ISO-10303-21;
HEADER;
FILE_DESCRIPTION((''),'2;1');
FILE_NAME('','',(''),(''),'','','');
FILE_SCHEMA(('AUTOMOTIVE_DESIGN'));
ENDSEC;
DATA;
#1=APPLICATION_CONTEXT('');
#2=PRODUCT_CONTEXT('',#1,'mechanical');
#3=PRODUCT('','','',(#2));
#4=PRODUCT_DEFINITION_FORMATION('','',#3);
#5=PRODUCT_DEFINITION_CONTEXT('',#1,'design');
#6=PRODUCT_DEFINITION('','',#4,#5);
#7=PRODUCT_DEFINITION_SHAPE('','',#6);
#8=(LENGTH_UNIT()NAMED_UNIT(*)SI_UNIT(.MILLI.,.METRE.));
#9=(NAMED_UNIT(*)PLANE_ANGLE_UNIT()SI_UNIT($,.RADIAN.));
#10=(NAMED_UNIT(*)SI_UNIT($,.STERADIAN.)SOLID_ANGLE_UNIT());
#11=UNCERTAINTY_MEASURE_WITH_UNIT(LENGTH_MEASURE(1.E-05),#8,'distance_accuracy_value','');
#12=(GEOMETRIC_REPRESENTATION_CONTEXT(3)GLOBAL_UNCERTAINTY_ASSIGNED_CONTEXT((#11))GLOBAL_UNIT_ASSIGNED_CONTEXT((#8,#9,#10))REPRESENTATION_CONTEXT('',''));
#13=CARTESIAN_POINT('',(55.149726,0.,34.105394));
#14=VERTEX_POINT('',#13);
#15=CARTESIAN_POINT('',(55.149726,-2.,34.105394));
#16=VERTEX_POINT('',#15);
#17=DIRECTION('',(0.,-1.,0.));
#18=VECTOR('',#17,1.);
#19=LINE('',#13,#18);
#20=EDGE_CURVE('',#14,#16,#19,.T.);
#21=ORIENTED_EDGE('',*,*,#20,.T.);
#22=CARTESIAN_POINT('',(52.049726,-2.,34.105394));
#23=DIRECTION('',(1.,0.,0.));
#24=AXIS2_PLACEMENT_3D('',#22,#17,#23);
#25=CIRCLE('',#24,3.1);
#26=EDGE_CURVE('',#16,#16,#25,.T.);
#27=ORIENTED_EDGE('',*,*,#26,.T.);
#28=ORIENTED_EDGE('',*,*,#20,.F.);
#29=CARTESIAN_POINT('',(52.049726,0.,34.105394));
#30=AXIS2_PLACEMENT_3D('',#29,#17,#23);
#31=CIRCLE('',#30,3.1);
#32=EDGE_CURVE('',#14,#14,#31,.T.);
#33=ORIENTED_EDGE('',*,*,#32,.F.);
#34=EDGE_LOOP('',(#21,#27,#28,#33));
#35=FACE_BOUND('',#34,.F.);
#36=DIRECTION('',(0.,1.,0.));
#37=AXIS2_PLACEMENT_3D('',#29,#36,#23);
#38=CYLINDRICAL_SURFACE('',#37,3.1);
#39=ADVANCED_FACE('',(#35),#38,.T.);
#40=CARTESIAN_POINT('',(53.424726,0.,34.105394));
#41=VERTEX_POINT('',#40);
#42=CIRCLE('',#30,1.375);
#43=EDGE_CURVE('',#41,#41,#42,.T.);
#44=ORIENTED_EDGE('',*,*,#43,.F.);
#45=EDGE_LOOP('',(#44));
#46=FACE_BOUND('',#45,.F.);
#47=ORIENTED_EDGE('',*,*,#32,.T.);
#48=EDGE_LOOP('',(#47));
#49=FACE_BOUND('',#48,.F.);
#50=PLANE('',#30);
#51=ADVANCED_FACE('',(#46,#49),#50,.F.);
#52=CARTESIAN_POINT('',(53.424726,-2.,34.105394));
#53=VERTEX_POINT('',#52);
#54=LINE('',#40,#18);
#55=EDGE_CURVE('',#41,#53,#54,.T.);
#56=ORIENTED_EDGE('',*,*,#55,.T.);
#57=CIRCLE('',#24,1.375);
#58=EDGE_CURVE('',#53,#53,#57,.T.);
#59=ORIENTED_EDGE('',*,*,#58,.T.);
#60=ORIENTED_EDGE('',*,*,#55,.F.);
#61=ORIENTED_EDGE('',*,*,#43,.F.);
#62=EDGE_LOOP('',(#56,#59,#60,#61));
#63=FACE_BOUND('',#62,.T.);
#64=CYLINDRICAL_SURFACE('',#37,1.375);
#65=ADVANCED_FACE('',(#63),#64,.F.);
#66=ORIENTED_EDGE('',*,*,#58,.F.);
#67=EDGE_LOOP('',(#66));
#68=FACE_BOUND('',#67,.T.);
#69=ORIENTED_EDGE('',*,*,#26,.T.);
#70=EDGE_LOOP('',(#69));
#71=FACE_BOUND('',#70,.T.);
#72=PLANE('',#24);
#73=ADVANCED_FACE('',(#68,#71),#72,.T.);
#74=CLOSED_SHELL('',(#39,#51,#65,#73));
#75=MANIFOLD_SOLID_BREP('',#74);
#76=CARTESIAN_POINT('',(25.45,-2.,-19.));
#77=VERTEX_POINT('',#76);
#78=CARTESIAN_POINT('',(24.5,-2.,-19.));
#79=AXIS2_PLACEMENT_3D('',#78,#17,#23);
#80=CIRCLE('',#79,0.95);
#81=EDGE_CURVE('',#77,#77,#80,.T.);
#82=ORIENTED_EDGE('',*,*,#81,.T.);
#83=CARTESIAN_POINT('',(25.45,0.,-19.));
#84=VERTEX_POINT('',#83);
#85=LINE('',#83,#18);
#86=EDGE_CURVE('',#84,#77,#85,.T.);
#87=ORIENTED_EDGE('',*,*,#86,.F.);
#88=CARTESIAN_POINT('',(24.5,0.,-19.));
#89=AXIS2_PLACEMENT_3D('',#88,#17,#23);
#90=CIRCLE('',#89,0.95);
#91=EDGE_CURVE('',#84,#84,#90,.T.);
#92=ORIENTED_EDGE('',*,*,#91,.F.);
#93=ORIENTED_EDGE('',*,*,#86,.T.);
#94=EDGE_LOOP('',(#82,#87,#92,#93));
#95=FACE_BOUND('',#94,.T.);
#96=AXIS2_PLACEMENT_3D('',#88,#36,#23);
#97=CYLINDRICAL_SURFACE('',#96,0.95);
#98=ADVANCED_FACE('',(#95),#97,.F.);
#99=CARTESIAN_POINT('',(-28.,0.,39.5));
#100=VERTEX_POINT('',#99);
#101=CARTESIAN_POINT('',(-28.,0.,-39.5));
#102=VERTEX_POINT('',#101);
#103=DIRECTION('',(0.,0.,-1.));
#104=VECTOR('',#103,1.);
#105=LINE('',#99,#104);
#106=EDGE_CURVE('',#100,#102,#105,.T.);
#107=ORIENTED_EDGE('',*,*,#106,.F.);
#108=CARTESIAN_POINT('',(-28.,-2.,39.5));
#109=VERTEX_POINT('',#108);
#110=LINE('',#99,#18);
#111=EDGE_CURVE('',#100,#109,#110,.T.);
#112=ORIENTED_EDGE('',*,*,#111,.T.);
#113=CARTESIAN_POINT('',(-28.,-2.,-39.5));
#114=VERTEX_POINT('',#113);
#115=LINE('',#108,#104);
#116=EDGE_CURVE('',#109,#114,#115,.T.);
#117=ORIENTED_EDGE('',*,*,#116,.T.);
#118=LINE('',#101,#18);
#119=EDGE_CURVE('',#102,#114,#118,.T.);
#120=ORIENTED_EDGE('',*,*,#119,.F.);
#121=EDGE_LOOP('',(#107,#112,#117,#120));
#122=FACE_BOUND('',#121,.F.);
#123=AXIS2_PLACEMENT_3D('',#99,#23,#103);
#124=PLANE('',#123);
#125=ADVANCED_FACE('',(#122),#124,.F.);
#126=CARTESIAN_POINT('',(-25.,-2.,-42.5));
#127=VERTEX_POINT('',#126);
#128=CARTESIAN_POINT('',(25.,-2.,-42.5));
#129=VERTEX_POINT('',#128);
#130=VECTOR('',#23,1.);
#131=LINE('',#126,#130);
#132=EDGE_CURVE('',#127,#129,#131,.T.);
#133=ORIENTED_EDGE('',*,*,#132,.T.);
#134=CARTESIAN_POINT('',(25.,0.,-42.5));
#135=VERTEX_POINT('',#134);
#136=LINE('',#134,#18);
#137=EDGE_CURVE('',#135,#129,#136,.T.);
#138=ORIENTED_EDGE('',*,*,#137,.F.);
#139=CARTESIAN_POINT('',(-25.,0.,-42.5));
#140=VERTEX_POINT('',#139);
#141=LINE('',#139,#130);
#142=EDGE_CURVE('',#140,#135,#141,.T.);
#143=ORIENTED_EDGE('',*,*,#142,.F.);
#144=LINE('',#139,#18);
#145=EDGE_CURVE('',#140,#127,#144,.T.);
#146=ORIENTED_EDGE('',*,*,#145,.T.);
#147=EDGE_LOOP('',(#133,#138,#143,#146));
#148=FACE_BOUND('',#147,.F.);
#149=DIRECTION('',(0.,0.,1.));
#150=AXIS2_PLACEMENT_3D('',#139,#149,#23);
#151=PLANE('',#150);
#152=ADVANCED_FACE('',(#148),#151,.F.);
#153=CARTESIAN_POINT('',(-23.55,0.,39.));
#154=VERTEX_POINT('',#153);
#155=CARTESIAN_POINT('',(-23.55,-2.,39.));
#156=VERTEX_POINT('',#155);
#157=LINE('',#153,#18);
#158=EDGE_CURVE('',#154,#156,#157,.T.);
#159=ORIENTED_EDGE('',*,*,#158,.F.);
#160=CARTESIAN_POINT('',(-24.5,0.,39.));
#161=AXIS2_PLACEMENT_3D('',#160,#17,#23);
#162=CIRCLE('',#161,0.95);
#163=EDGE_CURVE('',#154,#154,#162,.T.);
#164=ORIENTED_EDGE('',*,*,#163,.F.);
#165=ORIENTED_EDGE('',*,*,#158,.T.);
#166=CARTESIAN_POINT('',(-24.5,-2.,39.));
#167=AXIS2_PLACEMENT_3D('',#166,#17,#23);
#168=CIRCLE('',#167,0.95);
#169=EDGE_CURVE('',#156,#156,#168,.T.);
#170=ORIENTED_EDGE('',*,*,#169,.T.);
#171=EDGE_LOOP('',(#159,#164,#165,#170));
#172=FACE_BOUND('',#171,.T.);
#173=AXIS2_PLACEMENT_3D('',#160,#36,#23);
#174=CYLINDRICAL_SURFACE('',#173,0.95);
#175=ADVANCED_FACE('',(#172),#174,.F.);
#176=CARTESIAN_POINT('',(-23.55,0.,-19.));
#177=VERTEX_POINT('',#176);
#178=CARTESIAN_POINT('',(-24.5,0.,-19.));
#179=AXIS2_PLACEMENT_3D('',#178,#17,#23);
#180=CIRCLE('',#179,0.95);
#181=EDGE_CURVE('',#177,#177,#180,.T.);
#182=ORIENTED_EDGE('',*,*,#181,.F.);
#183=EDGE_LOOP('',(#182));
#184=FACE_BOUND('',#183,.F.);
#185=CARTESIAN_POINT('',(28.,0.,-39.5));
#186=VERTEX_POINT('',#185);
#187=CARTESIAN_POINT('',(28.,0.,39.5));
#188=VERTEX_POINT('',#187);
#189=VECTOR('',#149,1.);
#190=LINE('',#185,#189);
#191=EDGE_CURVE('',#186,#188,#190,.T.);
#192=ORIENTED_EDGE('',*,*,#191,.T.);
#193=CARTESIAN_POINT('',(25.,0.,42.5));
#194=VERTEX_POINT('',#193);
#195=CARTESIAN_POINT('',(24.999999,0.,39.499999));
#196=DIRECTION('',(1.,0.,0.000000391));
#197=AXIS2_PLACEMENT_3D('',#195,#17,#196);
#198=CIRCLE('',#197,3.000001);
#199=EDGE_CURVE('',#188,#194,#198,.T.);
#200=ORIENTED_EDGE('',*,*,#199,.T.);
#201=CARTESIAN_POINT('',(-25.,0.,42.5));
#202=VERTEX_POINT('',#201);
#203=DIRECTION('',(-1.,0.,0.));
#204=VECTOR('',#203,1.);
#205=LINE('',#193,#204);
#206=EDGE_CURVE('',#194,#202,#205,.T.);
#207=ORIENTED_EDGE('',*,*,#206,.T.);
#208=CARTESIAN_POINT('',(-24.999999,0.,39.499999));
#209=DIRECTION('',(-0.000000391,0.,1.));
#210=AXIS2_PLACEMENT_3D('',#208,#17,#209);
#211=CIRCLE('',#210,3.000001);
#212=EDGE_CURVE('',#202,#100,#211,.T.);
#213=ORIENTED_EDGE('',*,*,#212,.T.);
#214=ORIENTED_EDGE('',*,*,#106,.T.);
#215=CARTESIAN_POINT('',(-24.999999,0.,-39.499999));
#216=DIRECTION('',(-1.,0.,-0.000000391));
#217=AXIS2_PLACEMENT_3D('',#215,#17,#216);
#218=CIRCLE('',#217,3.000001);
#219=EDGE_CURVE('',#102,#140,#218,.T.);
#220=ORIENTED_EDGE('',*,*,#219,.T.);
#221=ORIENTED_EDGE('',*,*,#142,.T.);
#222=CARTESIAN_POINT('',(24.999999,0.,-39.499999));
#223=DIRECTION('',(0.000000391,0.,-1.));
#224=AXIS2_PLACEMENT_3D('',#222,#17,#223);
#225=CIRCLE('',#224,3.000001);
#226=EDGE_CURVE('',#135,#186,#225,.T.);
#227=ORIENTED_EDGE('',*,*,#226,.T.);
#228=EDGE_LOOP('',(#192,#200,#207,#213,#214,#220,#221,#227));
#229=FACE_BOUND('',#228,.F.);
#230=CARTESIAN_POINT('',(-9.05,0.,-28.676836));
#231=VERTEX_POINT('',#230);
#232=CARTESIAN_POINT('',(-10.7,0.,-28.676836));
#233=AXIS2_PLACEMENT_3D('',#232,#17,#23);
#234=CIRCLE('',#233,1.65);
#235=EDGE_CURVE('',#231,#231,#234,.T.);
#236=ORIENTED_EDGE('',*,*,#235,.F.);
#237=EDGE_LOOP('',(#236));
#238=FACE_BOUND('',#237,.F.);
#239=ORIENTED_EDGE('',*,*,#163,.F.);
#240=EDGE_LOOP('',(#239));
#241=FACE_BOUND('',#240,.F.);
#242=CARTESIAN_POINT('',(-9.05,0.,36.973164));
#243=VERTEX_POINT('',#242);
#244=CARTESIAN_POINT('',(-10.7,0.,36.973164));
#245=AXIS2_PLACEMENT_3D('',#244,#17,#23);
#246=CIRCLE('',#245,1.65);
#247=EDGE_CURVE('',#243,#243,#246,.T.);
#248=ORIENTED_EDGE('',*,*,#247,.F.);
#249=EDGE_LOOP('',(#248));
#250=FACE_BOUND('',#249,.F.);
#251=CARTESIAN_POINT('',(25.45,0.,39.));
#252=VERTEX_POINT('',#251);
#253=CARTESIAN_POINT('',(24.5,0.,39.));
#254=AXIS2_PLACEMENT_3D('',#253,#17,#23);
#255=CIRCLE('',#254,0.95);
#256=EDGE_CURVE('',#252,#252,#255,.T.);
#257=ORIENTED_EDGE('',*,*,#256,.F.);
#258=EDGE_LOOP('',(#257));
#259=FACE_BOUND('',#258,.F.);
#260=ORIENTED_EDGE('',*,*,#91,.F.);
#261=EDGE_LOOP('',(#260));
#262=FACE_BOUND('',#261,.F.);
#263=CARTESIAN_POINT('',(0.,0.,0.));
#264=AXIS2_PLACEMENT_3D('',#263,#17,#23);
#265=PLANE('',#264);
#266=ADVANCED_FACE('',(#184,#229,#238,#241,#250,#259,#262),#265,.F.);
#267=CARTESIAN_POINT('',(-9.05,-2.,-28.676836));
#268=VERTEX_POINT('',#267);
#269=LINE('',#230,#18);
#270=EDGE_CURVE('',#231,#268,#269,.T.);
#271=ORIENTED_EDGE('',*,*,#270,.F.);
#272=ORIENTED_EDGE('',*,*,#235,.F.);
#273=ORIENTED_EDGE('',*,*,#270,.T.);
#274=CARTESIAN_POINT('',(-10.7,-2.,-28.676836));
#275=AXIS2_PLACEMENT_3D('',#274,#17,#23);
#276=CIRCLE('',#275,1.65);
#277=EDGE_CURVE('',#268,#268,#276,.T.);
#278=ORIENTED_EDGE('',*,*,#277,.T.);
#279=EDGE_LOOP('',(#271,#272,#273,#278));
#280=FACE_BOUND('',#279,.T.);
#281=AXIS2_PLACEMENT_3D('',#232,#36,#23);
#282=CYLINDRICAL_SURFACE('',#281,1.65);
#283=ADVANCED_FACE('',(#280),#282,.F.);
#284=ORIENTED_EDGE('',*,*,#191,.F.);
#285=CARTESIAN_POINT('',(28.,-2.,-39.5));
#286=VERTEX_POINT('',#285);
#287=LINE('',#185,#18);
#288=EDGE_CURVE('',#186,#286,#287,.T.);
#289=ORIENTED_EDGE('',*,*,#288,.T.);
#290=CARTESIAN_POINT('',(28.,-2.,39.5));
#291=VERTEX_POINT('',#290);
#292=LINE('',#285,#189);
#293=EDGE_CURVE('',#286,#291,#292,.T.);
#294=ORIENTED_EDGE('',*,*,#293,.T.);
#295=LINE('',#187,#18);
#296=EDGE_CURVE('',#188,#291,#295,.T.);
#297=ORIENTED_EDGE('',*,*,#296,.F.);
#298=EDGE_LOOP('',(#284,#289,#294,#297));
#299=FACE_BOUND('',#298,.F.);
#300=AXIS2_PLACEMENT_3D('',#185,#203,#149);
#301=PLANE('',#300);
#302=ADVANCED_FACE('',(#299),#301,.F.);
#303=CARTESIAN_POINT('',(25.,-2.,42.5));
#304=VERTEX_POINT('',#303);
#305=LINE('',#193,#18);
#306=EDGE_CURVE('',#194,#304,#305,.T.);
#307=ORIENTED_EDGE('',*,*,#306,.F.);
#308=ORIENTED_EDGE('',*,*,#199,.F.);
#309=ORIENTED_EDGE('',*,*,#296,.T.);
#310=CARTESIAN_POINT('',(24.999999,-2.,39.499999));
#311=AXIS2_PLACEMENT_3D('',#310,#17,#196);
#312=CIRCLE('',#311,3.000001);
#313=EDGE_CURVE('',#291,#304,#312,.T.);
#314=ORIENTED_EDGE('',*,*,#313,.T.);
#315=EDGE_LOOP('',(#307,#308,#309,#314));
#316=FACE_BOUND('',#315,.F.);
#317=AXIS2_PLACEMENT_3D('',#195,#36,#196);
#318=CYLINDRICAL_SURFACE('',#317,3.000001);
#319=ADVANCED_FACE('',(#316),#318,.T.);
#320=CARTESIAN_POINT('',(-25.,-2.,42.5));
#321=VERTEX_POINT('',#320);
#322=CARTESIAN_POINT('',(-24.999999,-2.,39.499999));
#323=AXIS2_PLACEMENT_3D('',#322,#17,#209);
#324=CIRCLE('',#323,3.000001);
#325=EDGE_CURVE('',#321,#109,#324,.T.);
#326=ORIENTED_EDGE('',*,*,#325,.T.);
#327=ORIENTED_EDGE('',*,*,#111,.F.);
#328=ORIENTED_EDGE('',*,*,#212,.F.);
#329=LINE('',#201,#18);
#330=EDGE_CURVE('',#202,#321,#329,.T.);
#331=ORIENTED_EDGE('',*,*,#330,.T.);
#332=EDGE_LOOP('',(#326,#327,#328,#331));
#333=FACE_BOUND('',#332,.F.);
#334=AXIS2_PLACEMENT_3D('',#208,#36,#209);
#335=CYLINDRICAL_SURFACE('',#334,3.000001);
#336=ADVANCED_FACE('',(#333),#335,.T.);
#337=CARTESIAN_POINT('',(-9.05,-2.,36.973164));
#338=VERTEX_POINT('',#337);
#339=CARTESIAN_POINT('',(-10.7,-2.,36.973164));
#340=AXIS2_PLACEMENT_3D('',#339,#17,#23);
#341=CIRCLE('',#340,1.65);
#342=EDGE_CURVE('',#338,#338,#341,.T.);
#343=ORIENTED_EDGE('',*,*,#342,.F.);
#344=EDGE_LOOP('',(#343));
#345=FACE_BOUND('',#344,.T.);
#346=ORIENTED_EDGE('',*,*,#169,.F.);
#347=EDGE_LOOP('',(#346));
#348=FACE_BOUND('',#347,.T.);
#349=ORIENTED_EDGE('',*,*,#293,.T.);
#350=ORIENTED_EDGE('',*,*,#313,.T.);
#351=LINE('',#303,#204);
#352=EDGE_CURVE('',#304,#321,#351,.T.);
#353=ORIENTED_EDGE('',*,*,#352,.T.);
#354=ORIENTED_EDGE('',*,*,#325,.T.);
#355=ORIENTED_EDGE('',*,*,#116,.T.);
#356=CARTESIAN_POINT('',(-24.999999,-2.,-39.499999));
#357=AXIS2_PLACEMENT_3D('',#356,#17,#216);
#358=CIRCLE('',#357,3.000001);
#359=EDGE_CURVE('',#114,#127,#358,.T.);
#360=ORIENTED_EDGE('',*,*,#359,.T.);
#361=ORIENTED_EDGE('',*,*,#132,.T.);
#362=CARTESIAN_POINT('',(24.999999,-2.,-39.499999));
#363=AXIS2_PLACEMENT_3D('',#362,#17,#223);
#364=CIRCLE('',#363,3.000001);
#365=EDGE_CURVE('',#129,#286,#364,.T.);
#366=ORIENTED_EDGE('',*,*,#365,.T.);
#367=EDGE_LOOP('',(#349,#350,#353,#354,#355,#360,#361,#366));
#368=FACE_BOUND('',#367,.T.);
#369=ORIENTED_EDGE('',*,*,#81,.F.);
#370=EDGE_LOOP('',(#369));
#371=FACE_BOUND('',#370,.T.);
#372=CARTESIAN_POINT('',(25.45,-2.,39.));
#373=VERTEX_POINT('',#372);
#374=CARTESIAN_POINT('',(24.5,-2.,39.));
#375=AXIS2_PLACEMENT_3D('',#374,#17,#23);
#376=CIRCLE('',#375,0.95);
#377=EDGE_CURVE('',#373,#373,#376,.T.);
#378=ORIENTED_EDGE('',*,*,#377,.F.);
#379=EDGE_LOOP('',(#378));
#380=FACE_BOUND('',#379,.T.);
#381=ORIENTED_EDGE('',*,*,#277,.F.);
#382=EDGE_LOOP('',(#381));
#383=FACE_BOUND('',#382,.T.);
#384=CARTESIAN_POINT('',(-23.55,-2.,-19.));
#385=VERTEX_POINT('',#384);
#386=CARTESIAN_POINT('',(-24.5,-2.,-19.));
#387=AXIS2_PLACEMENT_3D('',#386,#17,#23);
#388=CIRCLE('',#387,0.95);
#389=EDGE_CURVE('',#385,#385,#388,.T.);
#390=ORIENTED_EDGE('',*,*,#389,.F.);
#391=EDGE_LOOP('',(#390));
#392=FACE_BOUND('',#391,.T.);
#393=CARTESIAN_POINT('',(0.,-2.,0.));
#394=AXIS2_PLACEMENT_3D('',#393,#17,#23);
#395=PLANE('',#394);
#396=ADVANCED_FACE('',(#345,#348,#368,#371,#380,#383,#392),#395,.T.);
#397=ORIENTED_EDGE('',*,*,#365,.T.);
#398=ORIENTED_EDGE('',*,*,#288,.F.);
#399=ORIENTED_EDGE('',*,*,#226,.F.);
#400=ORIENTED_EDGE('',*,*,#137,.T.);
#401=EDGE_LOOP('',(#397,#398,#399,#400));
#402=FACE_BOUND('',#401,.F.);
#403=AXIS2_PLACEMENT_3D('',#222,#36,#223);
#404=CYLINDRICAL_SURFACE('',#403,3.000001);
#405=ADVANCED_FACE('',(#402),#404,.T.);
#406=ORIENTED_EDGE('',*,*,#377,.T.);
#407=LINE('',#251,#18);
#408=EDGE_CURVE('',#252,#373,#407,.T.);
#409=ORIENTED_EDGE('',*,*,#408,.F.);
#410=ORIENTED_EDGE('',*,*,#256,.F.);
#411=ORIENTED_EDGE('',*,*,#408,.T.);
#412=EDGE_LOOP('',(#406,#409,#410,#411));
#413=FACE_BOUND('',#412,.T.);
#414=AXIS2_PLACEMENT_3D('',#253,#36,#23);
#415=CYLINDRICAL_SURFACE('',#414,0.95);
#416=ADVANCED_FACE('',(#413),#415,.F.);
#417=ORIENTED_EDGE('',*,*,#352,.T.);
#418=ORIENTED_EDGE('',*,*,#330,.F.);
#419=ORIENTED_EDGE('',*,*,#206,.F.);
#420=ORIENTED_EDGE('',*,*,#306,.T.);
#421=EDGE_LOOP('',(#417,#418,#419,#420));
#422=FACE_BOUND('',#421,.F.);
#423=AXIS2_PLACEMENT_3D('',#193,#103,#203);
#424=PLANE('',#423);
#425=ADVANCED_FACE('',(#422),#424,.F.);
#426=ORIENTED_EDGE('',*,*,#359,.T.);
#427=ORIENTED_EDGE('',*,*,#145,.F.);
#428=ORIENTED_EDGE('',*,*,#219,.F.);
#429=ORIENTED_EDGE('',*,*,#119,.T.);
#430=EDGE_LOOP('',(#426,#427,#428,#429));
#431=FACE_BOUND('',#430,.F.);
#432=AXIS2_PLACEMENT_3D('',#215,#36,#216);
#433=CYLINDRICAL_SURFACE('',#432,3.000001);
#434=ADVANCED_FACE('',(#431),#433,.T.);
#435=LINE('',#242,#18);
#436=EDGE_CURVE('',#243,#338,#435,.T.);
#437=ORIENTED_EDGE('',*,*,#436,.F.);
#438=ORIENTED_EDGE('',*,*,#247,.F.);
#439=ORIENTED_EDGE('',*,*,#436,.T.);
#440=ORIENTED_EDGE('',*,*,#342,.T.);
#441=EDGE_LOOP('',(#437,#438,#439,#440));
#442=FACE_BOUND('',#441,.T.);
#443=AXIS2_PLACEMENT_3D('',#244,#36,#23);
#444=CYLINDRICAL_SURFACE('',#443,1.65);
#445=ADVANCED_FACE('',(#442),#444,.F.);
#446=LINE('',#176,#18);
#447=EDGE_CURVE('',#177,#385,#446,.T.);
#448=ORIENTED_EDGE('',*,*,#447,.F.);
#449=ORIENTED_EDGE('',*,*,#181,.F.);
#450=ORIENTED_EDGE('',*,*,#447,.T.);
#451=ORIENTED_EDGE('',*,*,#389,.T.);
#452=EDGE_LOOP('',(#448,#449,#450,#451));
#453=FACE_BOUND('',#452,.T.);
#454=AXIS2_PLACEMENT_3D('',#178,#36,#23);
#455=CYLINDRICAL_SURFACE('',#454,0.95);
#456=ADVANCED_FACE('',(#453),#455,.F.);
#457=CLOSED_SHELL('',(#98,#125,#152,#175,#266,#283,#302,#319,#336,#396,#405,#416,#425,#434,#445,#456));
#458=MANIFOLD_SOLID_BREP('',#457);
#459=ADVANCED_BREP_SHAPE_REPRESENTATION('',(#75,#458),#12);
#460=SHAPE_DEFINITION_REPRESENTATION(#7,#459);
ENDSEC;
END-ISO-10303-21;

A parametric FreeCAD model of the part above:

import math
import FreeCAD as App
import Part
import Sketcher

doc = App.newDocument("Part")
params = doc.addObject("Spreadsheet::Sheet", "Params")
for row, (alias, value) in enumerate([
    ("sketch1_radius", "3.000001 mm"),
    ("sketch1_diameter", "1.9 mm"),
    ("sketch1_diameter2", "3.3 mm"),
    ("sketch1_diameter3", "6.2 mm"),
    ("sketch1_diameter4", "2.75 mm"),
    ("pad1_length", "2 mm"),
], start=1):
    params.set(f"A{row}", alias)
    params.set(f"B{row}", "=" + value)
    params.setAlias(f"B{row}", alias)

body = doc.addObject("PartDesign::Body", "Body")
body.AllowCompound = True

# Sketch on XZ plane
sketch1 = body.newObject("Sketcher::SketchObject", "Sketch")
sketch1.AttachmentSupport = (doc.getObject("XZ_Plane"), [""])
sketch1.MapMode = "FlatFace"
sketch1.addGeometry([
    Part.LineSegment(App.Vector(25, 42.5, 0), App.Vector(-25, 42.5, 0)),  # 0
    Part.ArcOfCircle(Part.Circle(App.Vector(-25, 39.5, 0), App.Vector(0, 0, 1), 3), math.radians(90), math.radians(180)),  # 1
    Part.LineSegment(App.Vector(-28, 39.5, 0), App.Vector(-28, -39.5, 0)),  # 2
    Part.ArcOfCircle(Part.Circle(App.Vector(-25, -39.5, 0), App.Vector(0, 0, 1), 3), math.radians(-180), math.radians(-90)),  # 3
    Part.LineSegment(App.Vector(-25, -42.5, 0), App.Vector(25, -42.5, 0)),  # 4
    Part.ArcOfCircle(Part.Circle(App.Vector(25, -39.5, 0), App.Vector(0, 0, 1), 3), math.radians(-90), math.radians(0)),  # 5
    Part.LineSegment(App.Vector(28, -39.5, 0), App.Vector(28, 39.5, 0)),  # 6
    Part.ArcOfCircle(Part.Circle(App.Vector(25, 39.5, 0), App.Vector(0, 0, 1), 3), math.radians(0), math.radians(90)),  # 7
    Part.Circle(App.Vector(-24.5, -19, 0), App.Vector(0, 0, 1), 0.9),  # 8
    Part.Circle(App.Vector(-10.7, -28.7, 0), App.Vector(0, 0, 1), 1.6),  # 9
    Part.Circle(App.Vector(24.5, -19, 0), App.Vector(0, 0, 1), 0.9),  # 10
    Part.Circle(App.Vector(-24.5, 39, 0), App.Vector(0, 0, 1), 0.9),  # 11
    Part.Circle(App.Vector(-10.7, 37, 0), App.Vector(0, 0, 1), 1.6),  # 12
    Part.Circle(App.Vector(24.5, 39, 0), App.Vector(0, 0, 1), 0.9),  # 13
    Part.Circle(App.Vector(52, 34.1, 0), App.Vector(0, 0, 1), 3.1),  # 14
    Part.Circle(App.Vector(52, 34.1, 0), App.Vector(0, 0, 1), 1.4),  # 15
], False)
sketch1.addConstraint([
    Sketcher.Constraint("Tangent", 0, 2, 1, 1),
    Sketcher.Constraint("Tangent", 1, 2, 2, 1),
    Sketcher.Constraint("Tangent", 2, 2, 3, 1),
    Sketcher.Constraint("Tangent", 3, 2, 4, 1),
    Sketcher.Constraint("Tangent", 4, 2, 5, 1),
    Sketcher.Constraint("Tangent", 5, 2, 6, 1),
    Sketcher.Constraint("Tangent", 6, 2, 7, 1),
    Sketcher.Constraint("Tangent", 7, 2, 0, 1),
    Sketcher.Constraint("Horizontal", 0),
    Sketcher.Constraint("Vertical", 2),
    Sketcher.Constraint("Horizontal", 4),
    Sketcher.Constraint("Vertical", 6),
    Sketcher.Constraint("Coincident", 15, 3, 14, 3),
    Sketcher.Constraint("Equal", 1, 3),
    Sketcher.Constraint("Equal", 3, 5),
    Sketcher.Constraint("Equal", 5, 7),
    Sketcher.Constraint("Equal", 8, 10),
    Sketcher.Constraint("Equal", 10, 11),
    Sketcher.Constraint("Equal", 9, 12),
    Sketcher.Constraint("Equal", 11, 13),
    Sketcher.Constraint("Symmetric", 1, 3, 5, 3, -1, 1),
    Sketcher.Constraint("Symmetric", 8, 3, 10, 3, -2),
    Sketcher.Constraint("Symmetric", 11, 3, 13, 3, -2),
    Sketcher.Constraint("Vertical", 8, 3, 11, 3),
    Sketcher.Constraint("Vertical", 9, 3, 12, 3),
    Sketcher.Constraint("Radius", 1, 3.000001),
    Sketcher.Constraint("Diameter", 8, 1.9),
    Sketcher.Constraint("Diameter", 9, 3.3),
    Sketcher.Constraint("Diameter", 14, 6.2),
    Sketcher.Constraint("Diameter", 15, 2.75),
    Sketcher.Constraint("DistanceX", 0, 2, 0, 1, 50.0),
    Sketcher.Constraint("DistanceY", 2, 2, 2, 1, 79.0),
    Sketcher.Constraint("DistanceY", 8, 3, -1, 1, 19.0),
    Sketcher.Constraint("DistanceY", -1, 1, 11, 3, 39.0),
    Sketcher.Constraint("DistanceX", 8, 3, 10, 3, 49.0),
    Sketcher.Constraint("DistanceX", 9, 3, -1, 1, 10.7),
    Sketcher.Constraint("DistanceY", 9, 3, 12, 3, 65.65),
    Sketcher.Constraint("DistanceY", 14, 3, 12, 3, 2.86777),
    Sketcher.Constraint("DistanceY", 9, 3, -1, 1, 28.676836),
    Sketcher.Constraint("DistanceX", -1, 1, 14, 3, 52.049726),
])
sketch1.setExpression("Constraints[25]", "Params.sketch1_radius")
sketch1.setExpression("Constraints[26]", "Params.sketch1_diameter")
sketch1.setExpression("Constraints[27]", "Params.sketch1_diameter2")
sketch1.setExpression("Constraints[28]", "Params.sketch1_diameter3")
sketch1.setExpression("Constraints[29]", "Params.sketch1_diameter4")
pad1 = body.newObject("PartDesign::Pad", "Pad")
pad1.Profile = sketch1
pad1.setExpression("Length", "Params.pad1_length")

doc.recompute()
